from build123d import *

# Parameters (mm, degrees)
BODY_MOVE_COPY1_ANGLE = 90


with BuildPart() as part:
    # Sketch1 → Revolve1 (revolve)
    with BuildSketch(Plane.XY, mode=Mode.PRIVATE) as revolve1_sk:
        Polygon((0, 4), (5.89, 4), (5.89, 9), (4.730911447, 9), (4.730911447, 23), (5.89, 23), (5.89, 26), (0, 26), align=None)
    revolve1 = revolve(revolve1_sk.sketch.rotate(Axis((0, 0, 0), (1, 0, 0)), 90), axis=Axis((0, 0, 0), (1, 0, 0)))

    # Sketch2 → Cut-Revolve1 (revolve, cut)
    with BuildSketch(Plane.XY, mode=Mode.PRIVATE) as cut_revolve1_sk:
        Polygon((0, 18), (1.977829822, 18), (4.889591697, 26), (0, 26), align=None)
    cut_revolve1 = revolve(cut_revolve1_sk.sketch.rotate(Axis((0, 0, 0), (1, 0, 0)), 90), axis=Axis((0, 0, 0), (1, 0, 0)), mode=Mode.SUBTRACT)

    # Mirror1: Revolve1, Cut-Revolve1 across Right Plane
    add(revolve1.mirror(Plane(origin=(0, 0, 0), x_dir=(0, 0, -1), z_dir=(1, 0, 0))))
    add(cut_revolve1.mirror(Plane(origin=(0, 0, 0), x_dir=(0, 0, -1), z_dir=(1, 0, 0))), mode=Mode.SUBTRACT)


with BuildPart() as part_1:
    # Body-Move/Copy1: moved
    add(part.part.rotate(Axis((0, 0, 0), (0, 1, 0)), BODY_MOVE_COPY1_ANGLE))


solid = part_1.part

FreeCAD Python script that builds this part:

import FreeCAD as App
import Part
import Sketcher
from FreeCAD import Vector
Q = App.Units.Quantity

doc = App.newDocument("Part")
body = doc.addObject("PartDesign::Body", "Body")

# Sketch on XY plane
sketch1 = body.newObject("Sketcher::SketchObject", "Sketch")
sketch1.AttachmentSupport = (doc.getObject("XY_Plane"), [""])
sketch1.MapMode = "FlatFace"
sketch1.addGeometry([
    Part.LineSegment(Vector(0, 4, 0), Vector(5.9, 4, 0)),  # 0
    Part.LineSegment(Vector(5.9, 4, 0), Vector(5.9, 9, 0)),  # 1
    Part.LineSegment(Vector(5.9, 9, 0), Vector(4.7, 9, 0)),  # 2
    Part.LineSegment(Vector(4.7, 9, 0), Vector(4.7, 23, 0)),  # 3
    Part.LineSegment(Vector(4.7, 23, 0), Vector(5.9, 23, 0)),  # 4
    Part.LineSegment(Vector(5.9, 23, 0), Vector(5.9, 26, 0)),  # 5
    Part.LineSegment(Vector(5.9, 26, 0), Vector(0, 26, 0)),  # 6
    Part.LineSegment(Vector(0, 26, 0), Vector(0, 4, 0)),  # 7
], False)
sketch1.addConstraint([
    Sketcher.Constraint("Coincident", 0, 2, 1, 1),
    Sketcher.Constraint("Coincident", 1, 2, 2, 1),
    Sketcher.Constraint("Coincident", 2, 2, 3, 1),
    Sketcher.Constraint("Coincident", 3, 2, 4, 1),
    Sketcher.Constraint("Coincident", 4, 2, 5, 1),
    Sketcher.Constraint("Coincident", 5, 2, 6, 1),
    Sketcher.Constraint("Coincident", 6, 2, 7, 1),
    Sketcher.Constraint("Coincident", 7, 2, 0, 1),
    Sketcher.Constraint("Horizontal", 0),
    Sketcher.Constraint("Vertical", 1),
    Sketcher.Constraint("Horizontal", 2),
    Sketcher.Constraint("Vertical", 3),
    Sketcher.Constraint("Horizontal", 4),
    Sketcher.Constraint("Vertical", 5),
    Sketcher.Constraint("Horizontal", 6),
    Sketcher.Constraint("Vertical", 7),
    Sketcher.Constraint("PointOnObject", 6, 2, -2),
    Sketcher.Constraint("Vertical", 1, 2, 4, 2),
    Sketcher.Constraint("DistanceY", 1, 1, 1, 2, Q("5 mm")),
    Sketcher.Constraint("DistanceY", 3, 1, 3, 2, Q("14 mm")),
    Sketcher.Constraint("DistanceY", 5, 1, 5, 2, Q("3 mm")),
    Sketcher.Constraint("DistanceY", -1, 1, 0, 2, Q("4 mm")),
    Sketcher.Constraint("DistanceX", 0, 1, 0, 2, Q("5.89 mm")),
    Sketcher.Constraint("DistanceX", 2, 2, 2, 1, Q("1.159089 mm")),
])
revolution = body.newObject("PartDesign::Revolution", "Revolution")
revolution.Profile = sketch1
revolution.ReferenceAxis = (sketch1, ["H_Axis"])
revolution.Angle = 360

# Sketch on XY plane
sketch2 = body.newObject("Sketcher::SketchObject", "Sketch001")
sketch2.AttachmentSupport = (doc.getObject("XY_Plane"), [""])
sketch2.MapMode = "FlatFace"
sketch2.addGeometry([
    Part.LineSegment(Vector(0, 18, 0), Vector(2, 18, 0)),
    Part.LineSegment(Vector(2, 18, 0), Vector(4.9, 26, 0)),
    Part.LineSegment(Vector(4.9, 26, 0), Vector(0, 26, 0)),
    Part.LineSegment(Vector(0, 26, 0), Vector(0, 18, 0)),
], False)
sketch2.addConstraint([
    Sketcher.Constraint("Coincident", 0, 2, 1, 1),
    Sketcher.Constraint("Coincident", 1, 2, 2, 1),
    Sketcher.Constraint("Coincident", 2, 2, 3, 1),
    Sketcher.Constraint("Coincident", 3, 2, 0, 1),
    Sketcher.Constraint("Horizontal", 0),
    Sketcher.Constraint("Horizontal", 2),
    Sketcher.Constraint("Vertical", 3),
    Sketcher.Constraint("PointOnObject", 2, 2, -2),
    Sketcher.Constraint("DistanceY", 3, 2, 3, 1, Q("8 mm")),
    Sketcher.Constraint("Angle", 1, Q("70 deg")),
    Sketcher.Constraint("DistanceY", -1, 1, 0, 2, Q("18 mm")),
    Sketcher.Constraint("DistanceX", 0, 1, 0, 2, Q("1.97783 mm")),
])
groove = body.newObject("PartDesign::Groove", "Groove")
groove.Profile = sketch2
groove.ReferenceAxis = (sketch2, ["H_Axis"])
groove.Angle = 360
doc.recompute()

mirrored = body.newObject("PartDesign::Mirrored", "Mirrored")
mirrored.Originals = [revolution, groove]
mirrored.MirrorPlane = (doc.getObject("YZ_Plane"), [""])
body.Tip = mirrored
body2 = doc.addObject("PartDesign::Body", "Body001")
doc.recompute()

body.Placement = App.Placement(Vector(0, 0, 0), App.Rotation(Vector(0, 1, 0), 90))
boolean = body2.newObject("PartDesign::Boolean", "Boolean")
boolean.Type = "Fuse"
boolean.addObjects([body])

doc.recompute()
